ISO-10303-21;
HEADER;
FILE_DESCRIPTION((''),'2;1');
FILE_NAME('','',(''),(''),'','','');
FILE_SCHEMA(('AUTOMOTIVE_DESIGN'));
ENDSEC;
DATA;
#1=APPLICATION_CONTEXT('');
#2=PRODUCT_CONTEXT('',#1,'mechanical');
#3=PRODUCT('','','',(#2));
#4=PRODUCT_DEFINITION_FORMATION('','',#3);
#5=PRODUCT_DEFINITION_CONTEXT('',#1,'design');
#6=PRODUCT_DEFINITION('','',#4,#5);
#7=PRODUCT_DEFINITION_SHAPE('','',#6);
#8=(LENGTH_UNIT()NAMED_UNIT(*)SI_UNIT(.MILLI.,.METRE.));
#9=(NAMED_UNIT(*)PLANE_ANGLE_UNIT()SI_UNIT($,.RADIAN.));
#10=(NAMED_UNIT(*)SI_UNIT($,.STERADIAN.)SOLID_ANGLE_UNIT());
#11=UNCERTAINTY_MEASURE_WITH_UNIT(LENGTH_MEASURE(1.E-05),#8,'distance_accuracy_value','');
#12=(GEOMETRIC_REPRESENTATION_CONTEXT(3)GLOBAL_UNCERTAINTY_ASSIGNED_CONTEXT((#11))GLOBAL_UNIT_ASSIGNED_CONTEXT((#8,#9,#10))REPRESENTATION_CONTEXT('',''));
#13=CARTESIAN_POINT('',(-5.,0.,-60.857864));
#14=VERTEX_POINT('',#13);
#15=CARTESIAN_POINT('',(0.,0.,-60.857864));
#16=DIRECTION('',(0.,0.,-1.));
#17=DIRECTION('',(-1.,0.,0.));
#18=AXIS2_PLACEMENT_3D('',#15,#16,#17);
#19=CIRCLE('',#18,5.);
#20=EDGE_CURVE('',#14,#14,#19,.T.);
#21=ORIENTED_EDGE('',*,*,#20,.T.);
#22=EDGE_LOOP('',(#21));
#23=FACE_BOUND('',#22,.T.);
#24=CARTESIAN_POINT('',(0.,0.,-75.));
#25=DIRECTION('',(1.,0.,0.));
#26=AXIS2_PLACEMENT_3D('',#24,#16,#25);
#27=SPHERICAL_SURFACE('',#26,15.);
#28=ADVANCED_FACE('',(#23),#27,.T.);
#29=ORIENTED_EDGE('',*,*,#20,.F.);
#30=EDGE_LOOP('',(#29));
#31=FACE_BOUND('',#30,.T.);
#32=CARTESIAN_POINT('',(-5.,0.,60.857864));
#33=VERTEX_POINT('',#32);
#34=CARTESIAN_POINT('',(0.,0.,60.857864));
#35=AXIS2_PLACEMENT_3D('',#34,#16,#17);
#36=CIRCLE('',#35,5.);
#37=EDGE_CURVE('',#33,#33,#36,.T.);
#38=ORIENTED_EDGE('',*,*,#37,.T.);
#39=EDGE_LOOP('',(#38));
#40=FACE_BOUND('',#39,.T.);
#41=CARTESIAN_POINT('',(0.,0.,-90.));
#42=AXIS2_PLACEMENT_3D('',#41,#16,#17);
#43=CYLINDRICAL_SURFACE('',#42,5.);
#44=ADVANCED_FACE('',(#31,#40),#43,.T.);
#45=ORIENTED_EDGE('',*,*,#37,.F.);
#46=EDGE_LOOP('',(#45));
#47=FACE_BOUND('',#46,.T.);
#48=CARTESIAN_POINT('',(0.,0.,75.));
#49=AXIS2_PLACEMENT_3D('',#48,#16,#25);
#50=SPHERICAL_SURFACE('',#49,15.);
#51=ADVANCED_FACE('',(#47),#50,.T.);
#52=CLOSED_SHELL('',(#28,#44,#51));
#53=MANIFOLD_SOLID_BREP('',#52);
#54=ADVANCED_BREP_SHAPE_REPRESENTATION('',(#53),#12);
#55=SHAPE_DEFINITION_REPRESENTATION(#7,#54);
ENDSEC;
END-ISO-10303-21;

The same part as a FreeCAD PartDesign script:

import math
import FreeCAD as App
import Part
import Sketcher

V = App.Vector

doc = App.newDocument("Part")
params = doc.addObject("Spreadsheet::Sheet", "Params")
for row, (alias, value) in enumerate([
    ("sketch1_radius", "15 mm"),
    ("sketch1_height", "180 mm"),
    ("revolution_angle", "360 deg"),
], start=1):
    params.set(f"A{row}", alias)
    params.set(f"B{row}", "=" + value)
    params.setAlias(f"B{row}", alias)

body = doc.addObject("PartDesign::Body", "Body")

# Sketch on XZ plane
sketch1 = doc.addObject("Sketcher::SketchObject", "Sketch")
body.addObject(sketch1)
sketch1.AttachmentSupport = (doc.XZ_Plane, [""])
sketch1.MapMode = "FlatFace"
sketch1.addGeometry([
    Part.LineSegment(V(0, -90, 0), V(0, 90, 0)),
    Part.ArcOfCircle(Part.Circle(V(0, 75, 0), V(0, 0, 1), 15), math.radians(-70.528779), math.radians(90)),
    Part.LineSegment(V(5, 60.857864, 0), V(5, -60.857864, 0)),
    Part.ArcOfCircle(Part.Circle(V(0, -75, 0), V(0, 0, 1), 15), math.radians(-90), math.radians(70.528779)),
], False)
sketch1.addConstraint([
    Sketcher.Constraint("Coincident", 0, 2, 1, 2),
    Sketcher.Constraint("Coincident", 1, 1, 2, 1),
    Sketcher.Constraint("Coincident", 2, 2, 3, 2),
    Sketcher.Constraint("Coincident", 3, 1, 0, 1),
    Sketcher.Constraint("Vertical", 0),
    Sketcher.Constraint("Vertical", 2),
    Sketcher.Constraint("Equal", 1, 3),
    Sketcher.Constraint("Symmetric", 1, 3, 3, 3, -1, 1),
    Sketcher.Constraint("PointOnObject", 1, 3, -2),
    Sketcher.Constraint("PointOnObject", 0, 2, -2),
    Sketcher.Constraint("Radius", 1, 15.0),
    Sketcher.Constraint("DistanceY", 0, 1, 0, 2, 180.0),
    Sketcher.Constraint("DistanceX", -1, 1, 1, 1, 5.0),
])
sketch1.setExpression("Constraints[10]", "Params.sketch1_radius")
sketch1.setExpression("Constraints[11]", "Params.sketch1_height")
revolution = doc.addObject("PartDesign::Revolution", "Revolution")
body.addObject(revolution)
revolution.Profile = sketch1
revolution.ReferenceAxis = (sketch1, ["V_Axis"])
revolution.setExpression("Angle", "Params.revolution_angle")

doc.recompute()
